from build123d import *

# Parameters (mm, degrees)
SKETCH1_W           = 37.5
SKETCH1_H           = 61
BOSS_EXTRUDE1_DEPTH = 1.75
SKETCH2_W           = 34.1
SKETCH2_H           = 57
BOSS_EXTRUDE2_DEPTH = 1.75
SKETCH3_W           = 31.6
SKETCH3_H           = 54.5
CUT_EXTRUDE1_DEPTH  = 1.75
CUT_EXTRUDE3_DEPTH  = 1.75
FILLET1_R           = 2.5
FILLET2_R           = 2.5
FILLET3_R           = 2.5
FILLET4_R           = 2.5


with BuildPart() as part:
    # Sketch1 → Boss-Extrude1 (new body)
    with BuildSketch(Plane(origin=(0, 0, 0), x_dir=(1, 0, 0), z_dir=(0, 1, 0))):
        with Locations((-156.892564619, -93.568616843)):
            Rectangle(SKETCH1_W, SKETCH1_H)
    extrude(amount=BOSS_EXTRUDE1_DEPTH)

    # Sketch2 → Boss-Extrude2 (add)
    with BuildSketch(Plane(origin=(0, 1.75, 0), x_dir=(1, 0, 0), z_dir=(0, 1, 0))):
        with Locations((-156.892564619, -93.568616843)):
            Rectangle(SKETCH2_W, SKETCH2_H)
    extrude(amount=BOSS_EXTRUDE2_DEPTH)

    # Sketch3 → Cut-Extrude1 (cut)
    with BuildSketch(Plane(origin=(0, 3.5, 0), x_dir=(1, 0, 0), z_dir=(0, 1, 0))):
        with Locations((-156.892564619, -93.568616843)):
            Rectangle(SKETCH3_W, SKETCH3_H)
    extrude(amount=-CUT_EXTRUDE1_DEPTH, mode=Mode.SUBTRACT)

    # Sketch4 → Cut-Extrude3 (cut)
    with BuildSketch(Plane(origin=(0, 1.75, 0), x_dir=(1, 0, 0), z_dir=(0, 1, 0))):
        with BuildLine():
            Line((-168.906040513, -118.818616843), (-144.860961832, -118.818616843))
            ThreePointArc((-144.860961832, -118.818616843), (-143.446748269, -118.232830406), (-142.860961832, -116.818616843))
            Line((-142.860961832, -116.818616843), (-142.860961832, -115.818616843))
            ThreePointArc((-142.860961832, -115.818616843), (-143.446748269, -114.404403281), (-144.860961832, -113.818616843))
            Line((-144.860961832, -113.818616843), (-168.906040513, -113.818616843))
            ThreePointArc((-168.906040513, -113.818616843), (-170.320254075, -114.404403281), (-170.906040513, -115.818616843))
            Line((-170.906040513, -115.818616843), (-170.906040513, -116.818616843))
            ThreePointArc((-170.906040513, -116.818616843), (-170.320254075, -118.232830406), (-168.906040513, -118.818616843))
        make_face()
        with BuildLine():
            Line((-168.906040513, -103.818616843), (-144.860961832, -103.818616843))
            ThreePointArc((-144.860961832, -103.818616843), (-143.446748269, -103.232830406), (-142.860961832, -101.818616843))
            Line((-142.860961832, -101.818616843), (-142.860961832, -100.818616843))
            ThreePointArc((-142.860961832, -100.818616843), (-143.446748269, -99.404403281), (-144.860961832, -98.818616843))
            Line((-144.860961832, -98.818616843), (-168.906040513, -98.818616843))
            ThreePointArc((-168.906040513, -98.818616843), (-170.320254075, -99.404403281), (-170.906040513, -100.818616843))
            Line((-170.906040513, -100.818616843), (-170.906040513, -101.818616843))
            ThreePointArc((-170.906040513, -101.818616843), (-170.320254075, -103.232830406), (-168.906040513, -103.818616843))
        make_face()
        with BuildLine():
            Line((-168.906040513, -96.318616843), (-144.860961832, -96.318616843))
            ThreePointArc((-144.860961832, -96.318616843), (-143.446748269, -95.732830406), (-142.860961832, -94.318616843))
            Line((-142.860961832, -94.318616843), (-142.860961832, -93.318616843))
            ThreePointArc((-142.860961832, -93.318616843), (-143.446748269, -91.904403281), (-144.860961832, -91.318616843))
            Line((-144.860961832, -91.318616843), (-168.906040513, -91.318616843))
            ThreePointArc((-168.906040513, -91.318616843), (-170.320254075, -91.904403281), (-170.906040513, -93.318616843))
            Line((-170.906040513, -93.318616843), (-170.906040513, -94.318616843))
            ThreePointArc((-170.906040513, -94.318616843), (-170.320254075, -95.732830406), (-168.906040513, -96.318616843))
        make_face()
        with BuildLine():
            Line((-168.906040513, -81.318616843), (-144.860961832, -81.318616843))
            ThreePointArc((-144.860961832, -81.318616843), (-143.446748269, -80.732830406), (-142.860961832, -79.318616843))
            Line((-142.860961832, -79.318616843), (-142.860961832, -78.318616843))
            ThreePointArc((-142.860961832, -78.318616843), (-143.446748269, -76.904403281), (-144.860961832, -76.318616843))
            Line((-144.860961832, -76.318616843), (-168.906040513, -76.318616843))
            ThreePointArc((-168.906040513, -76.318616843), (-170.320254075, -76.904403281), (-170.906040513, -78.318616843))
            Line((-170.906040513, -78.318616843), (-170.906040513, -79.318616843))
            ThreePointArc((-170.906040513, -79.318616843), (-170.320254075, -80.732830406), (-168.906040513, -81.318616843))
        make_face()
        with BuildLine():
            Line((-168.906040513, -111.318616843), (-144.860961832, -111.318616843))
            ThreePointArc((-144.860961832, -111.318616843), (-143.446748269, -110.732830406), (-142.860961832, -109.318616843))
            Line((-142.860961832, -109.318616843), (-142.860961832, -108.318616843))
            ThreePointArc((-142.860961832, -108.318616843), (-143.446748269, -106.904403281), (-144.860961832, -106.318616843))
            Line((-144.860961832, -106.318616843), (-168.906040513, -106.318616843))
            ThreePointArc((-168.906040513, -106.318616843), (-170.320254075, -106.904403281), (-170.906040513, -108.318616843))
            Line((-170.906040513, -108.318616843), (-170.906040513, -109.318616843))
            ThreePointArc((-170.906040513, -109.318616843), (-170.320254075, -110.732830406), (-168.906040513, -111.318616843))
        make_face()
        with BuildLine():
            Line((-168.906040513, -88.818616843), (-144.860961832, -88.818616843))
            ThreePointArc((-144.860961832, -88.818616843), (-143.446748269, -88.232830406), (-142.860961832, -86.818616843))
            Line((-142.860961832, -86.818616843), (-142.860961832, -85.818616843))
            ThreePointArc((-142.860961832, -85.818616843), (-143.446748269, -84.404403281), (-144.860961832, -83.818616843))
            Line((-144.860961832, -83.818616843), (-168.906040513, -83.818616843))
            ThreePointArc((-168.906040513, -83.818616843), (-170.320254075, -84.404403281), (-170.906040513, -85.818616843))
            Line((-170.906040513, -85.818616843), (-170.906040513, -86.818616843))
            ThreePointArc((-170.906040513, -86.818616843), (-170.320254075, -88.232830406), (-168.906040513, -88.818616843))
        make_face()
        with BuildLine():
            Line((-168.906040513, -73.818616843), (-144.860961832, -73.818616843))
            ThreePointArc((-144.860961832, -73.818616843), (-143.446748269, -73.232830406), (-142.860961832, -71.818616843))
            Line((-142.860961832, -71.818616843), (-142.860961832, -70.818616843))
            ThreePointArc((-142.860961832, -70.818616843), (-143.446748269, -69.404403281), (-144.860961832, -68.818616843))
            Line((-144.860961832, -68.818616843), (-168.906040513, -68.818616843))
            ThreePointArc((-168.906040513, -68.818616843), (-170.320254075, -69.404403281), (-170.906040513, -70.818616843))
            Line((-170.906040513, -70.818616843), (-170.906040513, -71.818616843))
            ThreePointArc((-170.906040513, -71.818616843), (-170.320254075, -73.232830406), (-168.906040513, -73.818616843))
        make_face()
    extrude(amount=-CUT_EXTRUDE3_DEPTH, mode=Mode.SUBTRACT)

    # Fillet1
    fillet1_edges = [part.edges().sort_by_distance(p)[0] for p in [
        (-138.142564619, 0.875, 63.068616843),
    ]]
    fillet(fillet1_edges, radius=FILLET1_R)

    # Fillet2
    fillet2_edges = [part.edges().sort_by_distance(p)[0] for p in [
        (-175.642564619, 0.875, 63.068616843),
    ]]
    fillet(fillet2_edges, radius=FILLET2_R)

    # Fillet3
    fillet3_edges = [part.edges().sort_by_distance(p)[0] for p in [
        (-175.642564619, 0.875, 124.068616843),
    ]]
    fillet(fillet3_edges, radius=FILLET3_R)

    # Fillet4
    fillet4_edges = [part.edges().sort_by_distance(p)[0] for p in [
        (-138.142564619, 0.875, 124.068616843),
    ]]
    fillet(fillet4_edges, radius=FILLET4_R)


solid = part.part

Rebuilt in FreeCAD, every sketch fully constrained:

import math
import FreeCAD as App
import Part
import Sketcher
Q = App.Units.Quantity


def edges_at(feature, points):
    """Names of the edges that pass closest to the given points."""
    edges = feature.Shape.Edges
    near = lambda p: min(range(len(edges)), key=lambda i: edges[i].distToShape(Part.Vertex(*p))[0])
    return sorted({f"Edge{near(p) + 1}" for p in points})

doc = App.newDocument("Part")
params = doc.addObject("Spreadsheet::Sheet", "Params")
for row, (alias, value) in enumerate([
    ("sketch1_height", "61 mm"),
    ("sketch1_width", "37.5 mm"),
    ("pad1_length", "1.75 mm"),
    ("sketch2_height", "57 mm"),
    ("sketch2_width", "34.1 mm"),
    ("pad2_length", "1.75 mm"),
    ("sketch3_width", "31.6 mm"),
    ("sketch3_height", "54.5 mm"),
    ("pocket1_length", "1.75 mm"),
    ("sketch4_radius", "2 mm"),
    ("sketch4_height", "1 mm"),
    ("pocket2_length", "1.75 mm"),
    ("fillet_radius", "2.5 mm"),
    ("fillet2_radius", "2.5 mm"),
    ("fillet3_radius", "2.5 mm"),
    ("fillet4_radius", "2.5 mm"),
], start=1):
    params.set(f"A{row}", alias)
    params.set(f"B{row}", "=" + value)
    params.setAlias(f"B{row}", alias)

body = doc.addObject("PartDesign::Body", "Body")

# Sketch on XZ plane
sketch1 = body.newObject("Sketcher::SketchObject", "Sketch")
sketch1.AttachmentSupport = (doc.getObject("XZ_Plane"), [""])
sketch1.MapMode = "FlatFace"
sketch1.addGeometry(Part.LineSegment(App.Vector(-175.642565, 63.068617, 0), App.Vector(-175.642565, 124.068617, 0)), False)
sketch1.addGeometry(Part.LineSegment(App.Vector(-175.642565, 124.068617, 0), App.Vector(-138.142565, 124.068617, 0)), False)
sketch1.addGeometry(Part.LineSegment(App.Vector(-138.142565, 124.068617, 0), App.Vector(-138.142565, 63.068617, 0)), False)
sketch1.addGeometry(Part.LineSegment(App.Vector(-138.142565, 63.068617, 0), App.Vector(-175.642565, 63.068617, 0)), False)
sketch1.addConstraint(Sketcher.Constraint("Coincident", 0, 2, 1, 1))
sketch1.addConstraint(Sketcher.Constraint("Coincident", 1, 2, 2, 1))
sketch1.addConstraint(Sketcher.Constraint("Coincident", 2, 2, 3, 1))
sketch1.addConstraint(Sketcher.Constraint("Coincident", 3, 2, 0, 1))
sketch1.addConstraint(Sketcher.Constraint("Vertical", 0))
sketch1.addConstraint(Sketcher.Constraint("Horizontal", 1))
sketch1.addConstraint(Sketcher.Constraint("Vertical", 2))
sketch1.addConstraint(Sketcher.Constraint("Horizontal", 3))
sketch1.addConstraint(Sketcher.Constraint("DistanceY", 0, 1, 0, 2, Q("61 mm")))
sketch1.addConstraint(Sketcher.Constraint("DistanceX", 1, 1, 1, 2, Q("37.5 mm")))
sketch1.addConstraint(Sketcher.Constraint("DistanceX", 0, 2, -1, 1, Q("175.642565 mm")))
sketch1.addConstraint(Sketcher.Constraint("DistanceY", -1, 1, 0, 2, Q("124.068617 mm")))
sketch1.setExpression("Constraints[8]", "Params.sketch1_height")
sketch1.setExpression("Constraints[9]", "Params.sketch1_width")
pad1 = body.newObject("PartDesign::Pad", "Pad")
pad1.Profile = sketch1
pad1.setExpression("Length", "Params.pad1_length")
pad1.Reversed = True

# Sketch on XZ plane
sketch2 = body.newObject("Sketcher::SketchObject", "Sketch001")
sketch2.AttachmentSupport = (doc.getObject("XZ_Plane"), [""])
sketch2.MapMode = "FlatFace"
sketch2.AttachmentOffset = App.Placement(App.Vector(0, 0, -1.75), App.Rotation())
sketch2.addGeometry(Part.LineSegment(App.Vector(-173.942565, 65.068617, 0), App.Vector(-173.942565, 122.068617, 0)), False)
sketch2.addGeometry(Part.LineSegment(App.Vector(-173.942565, 122.068617, 0), App.Vector(-139.842565, 122.068617, 0)), False)
sketch2.addGeometry(Part.LineSegment(App.Vector(-139.842565, 122.068617, 0), App.Vector(-139.842565, 65.068617, 0)), False)
sketch2.addGeometry(Part.LineSegment(App.Vector(-139.842565, 65.068617, 0), App.Vector(-173.942565, 65.068617, 0)), False)
sketch2.addConstraint(Sketcher.Constraint("Coincident", 0, 2, 1, 1))
sketch2.addConstraint(Sketcher.Constraint("Coincident", 1, 2, 2, 1))
sketch2.addConstraint(Sketcher.Constraint("Coincident", 2, 2, 3, 1))
sketch2.addConstraint(Sketcher.Constraint("Coincident", 3, 2, 0, 1))
sketch2.addConstraint(Sketcher.Constraint("Vertical", 0))
sketch2.addConstraint(Sketcher.Constraint("Horizontal", 1))
sketch2.addConstraint(Sketcher.Constraint("Vertical", 2))
sketch2.addConstraint(Sketcher.Constraint("Horizontal", 3))
sketch2.addConstraint(Sketcher.Constraint("DistanceY", 0, 1, 0, 2, Q("57 mm")))
sketch2.addConstraint(Sketcher.Constraint("DistanceX", 1, 1, 1, 2, Q("34.1 mm")))
sketch2.addConstraint(Sketcher.Constraint("DistanceX", 0, 2, -1, 1, Q("173.942565 mm")))
sketch2.addConstraint(Sketcher.Constraint("DistanceY", -1, 1, 0, 2, Q("122.068617 mm")))
sketch2.setExpression("Constraints[8]", "Params.sketch2_height")
sketch2.setExpression("Constraints[9]", "Params.sketch2_width")
pad2 = body.newObject("PartDesign::Pad", "Pad001")
pad2.Profile = sketch2
pad2.setExpression("Length", "Params.pad2_length")
pad2.Reversed = True

# Sketch on XZ plane
sketch3 = body.newObject("Sketcher::SketchObject", "Sketch002")
sketch3.AttachmentSupport = (doc.getObject("XZ_Plane"), [""])
sketch3.MapMode = "FlatFace"
sketch3.AttachmentOffset = App.Placement(App.Vector(0, 0, -3.5), App.Rotation())
sketch3.addGeometry(Part.LineSegment(App.Vector(-172.692565, 66.318617, 0), App.Vector(-172.692565, 120.818617, 0)), False)
sketch3.addGeometry(Part.LineSegment(App.Vector(-172.692565, 120.818617, 0), App.Vector(-141.092565, 120.818617, 0)), False)
sketch3.addGeometry(Part.LineSegment(App.Vector(-141.092565, 120.818617, 0), App.Vector(-141.092565, 66.318617, 0)), False)
sketch3.addGeometry(Part.LineSegment(App.Vector(-141.092565, 66.318617, 0), App.Vector(-172.692565, 66.318617, 0)), False)
sketch3.addConstraint(Sketcher.Constraint("Coincident", 0, 2, 1, 1))
sketch3.addConstraint(Sketcher.Constraint("Coincident", 1, 2, 2, 1))
sketch3.addConstraint(Sketcher.Constraint("Coincident", 2, 2, 3, 1))
sketch3.addConstraint(Sketcher.Constraint("Coincident", 3, 2, 0, 1))
sketch3.addConstraint(Sketcher.Constraint("Vertical", 0))
sketch3.addConstraint(Sketcher.Constraint("Horizontal", 1))
sketch3.addConstraint(Sketcher.Constraint("Vertical", 2))
sketch3.addConstraint(Sketcher.Constraint("Horizontal", 3))
sketch3.addConstraint(Sketcher.Constraint("DistanceX", 1, 1, 1, 2, Q("31.6 mm")))
sketch3.addConstraint(Sketcher.Constraint("DistanceY", 0, 1, 0, 2, Q("54.5 mm")))
sketch3.addConstraint(Sketcher.Constraint("DistanceX", 0, 2, -1, 1, Q("172.692565 mm")))
sketch3.addConstraint(Sketcher.Constraint("DistanceY", -1, 1, 0, 2, Q("120.818617 mm")))
sketch3.setExpression("Constraints[8]", "Params.sketch3_width")
sketch3.setExpression("Constraints[9]", "Params.sketch3_height")
pocket1 = body.newObject("PartDesign::Pocket", "Pocket")
pocket1.Profile = sketch3
pocket1.setExpression("Length", "Params.pocket1_length")
pocket1.Reversed = True

# Sketch on XZ plane
sketch4 = body.newObject("Sketcher::SketchObject", "Sketch003")
sketch4.AttachmentSupport = (doc.getObject("XZ_Plane"), [""])
sketch4.MapMode = "FlatFace"
sketch4.AttachmentOffset = App.Placement(App.Vector(0, 0, -1.75), App.Rotation())
sketch4.addGeometry(Part.LineSegment(App.Vector(-168.906041, 118.818617, 0), App.Vector(-144.860962, 118.818617, 0)), False)
sketch4.addGeometry(Part.ArcOfCircle(Part.Circle(App.Vector(-144.860962, 116.818617, 0), App.Vector(0, 0, 1), 2), math.radians(0), math.radians(90)), False)
sketch4.addGeometry(Part.LineSegment(App.Vector(-142.860962, 116.818617, 0), App.Vector(-142.860962, 115.818617, 0)), False)
sketch4.addGeometry(Part.ArcOfCircle(Part.Circle(App.Vector(-144.860962, 115.818617, 0), App.Vector(0, 0, 1), 2), math.radians(-90), math.radians(0)), False)
sketch4.addGeometry(Part.LineSegment(App.Vector(-144.860962, 113.818617, 0), App.Vector(-168.906041, 113.818617, 0)), False)
sketch4.addGeometry(Part.ArcOfCircle(Part.Circle(App.Vector(-168.906041, 115.818617, 0), App.Vector(0, 0, 1), 2), math.radians(-180), math.radians(-90)), False)
sketch4.addGeometry(Part.LineSegment(App.Vector(-170.906041, 115.818617, 0), App.Vector(-170.906041, 116.818617, 0)), False)
sketch4.addGeometry(Part.ArcOfCircle(Part.Circle(App.Vector(-168.906041, 116.818617, 0), App.Vector(0, 0, 1), 2), math.radians(90), math.radians(180)), False)
sketch4.addGeometry(Part.LineSegment(App.Vector(-168.906041, 103.818617, 0), App.Vector(-144.860962, 103.818617, 0)), False)
sketch4.addGeometry(Part.ArcOfCircle(Part.Circle(App.Vector(-144.860962, 101.818617, 0), App.Vector(0, 0, 1), 2), math.radians(0), math.radians(90)), False)
sketch4.addGeometry(Part.LineSegment(App.Vector(-142.860962, 101.818617, 0), App.Vector(-142.860962, 100.818617, 0)), False)
sketch4.addGeometry(Part.ArcOfCircle(Part.Circle(App.Vector(-144.860962, 100.818617, 0), App.Vector(0, 0, 1), 2), math.radians(-90), math.radians(0)), False)
sketch4.addGeometry(Part.LineSegment(App.Vector(-144.860962, 98.818617, 0), App.Vector(-168.906041, 98.818617, 0)), False)
sketch4.addGeometry(Part.ArcOfCircle(Part.Circle(App.Vector(-168.906041, 100.818617, 0), App.Vector(0, 0, 1), 2), math.radians(-180), math.radians(-90)), False)
sketch4.addGeometry(Part.LineSegment(App.Vector(-170.906041, 100.818617, 0), App.Vector(-170.906041, 101.818617, 0)), False)
sketch4.addGeometry(Part.ArcOfCircle(Part.Circle(App.Vector(-168.906041, 101.818617, 0), App.Vector(0, 0, 1), 2), math.radians(90), math.radians(180)), False)
sketch4.addGeometry(Part.LineSegment(App.Vector(-168.906041, 96.318617, 0), App.Vector(-144.860962, 96.318617, 0)), False)
sketch4.addGeometry(Part.ArcOfCircle(Part.Circle(App.Vector(-144.860962, 94.318617, 0), App.Vector(0, 0, 1), 2), math.radians(0), math.radians(90)), False)
sketch4.addGeometry(Part.LineSegment(App.Vector(-142.860962, 94.318617, 0), App.Vector(-142.860962, 93.318617, 0)), False)
sketch4.addGeometry(Part.ArcOfCircle(Part.Circle(App.Vector(-144.860962, 93.318617, 0), App.Vector(0, 0, 1), 2), math.radians(-90), math.radians(0)), False)
sketch4.addGeometry(Part.LineSegment(App.Vector(-144.860962, 91.318617, 0), App.Vector(-168.906041, 91.318617, 0)), False)
sketch4.addGeometry(Part.ArcOfCircle(Part.Circle(App.Vector(-168.906041, 93.318617, 0), App.Vector(0, 0, 1), 2), math.radians(-180), math.radians(-90)), False)
sketch4.addGeometry(Part.LineSegment(App.Vector(-170.906041, 93.318617, 0), App.Vector(-170.906041, 94.318617, 0)), False)
sketch4.addGeometry(Part.ArcOfCircle(Part.Circle(App.Vector(-168.906041, 94.318617, 0), App.Vector(0, 0, 1), 2), math.radians(90), math.radians(180)), False)
sketch4.addGeometry(Part.LineSegment(App.Vector(-168.906041, 81.318617, 0), App.Vector(-144.860962, 81.318617, 0)), False)
sketch4.addGeometry(Part.ArcOfCircle(Part.Circle(App.Vector(-144.860962, 79.318617, 0), App.Vector(0, 0, 1), 2), math.radians(0), math.radians(90)), False)
sketch4.addGeometry(Part.LineSegment(App.Vector(-142.860962, 79.318617, 0), App.Vector(-142.860962, 78.318617, 0)), False)
sketch4.addGeometry(Part.ArcOfCircle(Part.Circle(App.Vector(-144.860962, 78.318617, 0), App.Vector(0, 0, 1), 2), math.radians(-90), math.radians(0)), False)
sketch4.addGeometry(Part.LineSegment(App.Vector(-144.860962, 76.318617, 0), App.Vector(-168.906041, 76.318617, 0)), False)
sketch4.addGeometry(Part.ArcOfCircle(Part.Circle(App.Vector(-168.906041, 78.318617, 0), App.Vector(0, 0, 1), 2), math.radians(-180), math.radians(-90)), False)
sketch4.addGeometry(Part.LineSegment(App.Vector(-170.906041, 78.318617, 0), App.Vector(-170.906041, 79.318617, 0)), False)
sketch4.addGeometry(Part.ArcOfCircle(Part.Circle(App.Vector(-168.906041, 79.318617, 0), App.Vector(0, 0, 1), 2), math.radians(90), math.radians(180)), False)
sketch4.addGeometry(Part.LineSegment(App.Vector(-168.906041, 111.318617, 0), App.Vector(-144.860962, 111.318617, 0)), False)
sketch4.addGeometry(Part.ArcOfCircle(Part.Circle(App.Vector(-144.860962, 109.318617, 0), App.Vector(0, 0, 1), 2), math.radians(0), math.radians(90)), False)
sketch4.addGeometry(Part.LineSegment(App.Vector(-142.860962, 109.318617, 0), App.Vector(-142.860962, 108.318617, 0)), False)
sketch4.addGeometry(Part.ArcOfCircle(Part.Circle(App.Vector(-144.860962, 108.318617, 0), App.Vector(0, 0, 1), 2), math.radians(-90), math.radians(0)), False)
sketch4.addGeometry(Part.LineSegment(App.Vector(-144.860962, 106.318617, 0), App.Vector(-168.906041, 106.318617, 0)), False)
sketch4.addGeometry(Part.ArcOfCircle(Part.Circle(App.Vector(-168.906041, 108.318617, 0), App.Vector(0, 0, 1), 2), math.radians(-180), math.radians(-90)), False)
sketch4.addGeometry(Part.LineSegment(App.Vector(-170.906041, 108.318617, 0), App.Vector(-170.906041, 109.318617, 0)), False)
sketch4.addGeometry(Part.ArcOfCircle(Part.Circle(App.Vector(-168.906041, 109.318617, 0), App.Vector(0, 0, 1), 2), math.radians(90), math.radians(180)), False)
sketch4.addGeometry(Part.LineSegment(App.Vector(-168.906041, 88.818617, 0), App.Vector(-144.860962, 88.818617, 0)), False)
sketch4.addGeometry(Part.ArcOfCircle(Part.Circle(App.Vector(-144.860962, 86.818617, 0), App.Vector(0, 0, 1), 2), math.radians(0), math.radians(90)), False)
sketch4.addGeometry(Part.LineSegment(App.Vector(-142.860962, 86.818617, 0), App.Vector(-142.860962, 85.818617, 0)), False)
sketch4.addGeometry(Part.ArcOfCircle(Part.Circle(App.Vector(-144.860962, 85.818617, 0), App.Vector(0, 0, 1), 2), math.radians(-90), math.radians(0)), False)
sketch4.addGeometry(Part.LineSegment(App.Vector(-144.860962, 83.818617, 0), App.Vector(-168.906041, 83.818617, 0)), False)
sketch4.addGeometry(Part.ArcOfCircle(Part.Circle(App.Vector(-168.906041, 85.818617, 0), App.Vector(0, 0, 1), 2), math.radians(-180), math.radians(-90)), False)
sketch4.addGeometry(Part.LineSegment(App.Vector(-170.906041, 85.818617, 0), App.Vector(-170.906041, 86.818617, 0)), False)
sketch4.addGeometry(Part.ArcOfCircle(Part.Circle(App.Vector(-168.906041, 86.818617, 0), App.Vector(0, 0, 1), 2), math.radians(90), math.radians(180)), False)
sketch4.addGeometry(Part.LineSegment(App.Vector(-168.906041, 73.818617, 0), App.Vector(-144.860962, 73.818617, 0)), False)
sketch4.addGeometry(Part.ArcOfCircle(Part.Circle(App.Vector(-144.860962, 71.818617, 0), App.Vector(0, 0, 1), 2), math.radians(0), math.radians(90)), False)
sketch4.addGeometry(Part.LineSegment(App.Vector(-142.860962, 71.818617, 0), App.Vector(-142.860962, 70.818617, 0)), False)
sketch4.addGeometry(Part.ArcOfCircle(Part.Circle(App.Vector(-144.860962, 70.818617, 0), App.Vector(0, 0, 1), 2), math.radians(-90), math.radians(0)), False)
sketch4.addGeometry(Part.LineSegment(App.Vector(-144.860962, 68.818617, 0), App.Vector(-168.906041, 68.818617, 0)), False)
sketch4.addGeometry(Part.ArcOfCircle(Part.Circle(App.Vector(-168.906041, 70.818617, 0), App.Vector(0, 0, 1), 2), math.radians(-180), math.radians(-90)), False)
sketch4.addGeometry(Part.LineSegment(App.Vector(-170.906041, 70.818617, 0), App.Vector(-170.906041, 71.818617, 0)), False)
sketch4.addGeometry(Part.ArcOfCircle(Part.Circle(App.Vector(-168.906041, 71.818617, 0), App.Vector(0, 0, 1), 2), math.radians(90), math.radians(180)), False)
sketch4.addConstraint(Sketcher.Constraint("Tangent", 0, 2, 1, 2))
sketch4.addConstraint(Sketcher.Constraint("Tangent", 1, 1, 2, 1))
sketch4.addConstraint(Sketcher.Constraint("Tangent", 2, 2, 3, 2))
sketch4.addConstraint(Sketcher.Constraint("Tangent", 3, 1, 4, 1))
sketch4.addConstraint(Sketcher.Constraint("Tangent", 4, 2, 5, 2))
sketch4.addConstraint(Sketcher.Constraint("Tangent", 5, 1, 6, 1))
sketch4.addConstraint(Sketcher.Constraint("Tangent", 6, 2, 7, 2))
sketch4.addConstraint(Sketcher.Constraint("Tangent", 7, 1, 0, 1))
sketch4.addConstraint(Sketcher.Constraint("Tangent", 8, 2, 9, 2))
sketch4.addConstraint(Sketcher.Constraint("Tangent", 9, 1, 10, 1))
sketch4.addConstraint(Sketcher.Constraint("Tangent", 10, 2, 11, 2))
sketch4.addConstraint(Sketcher.Constraint("Tangent", 11, 1, 12, 1))
sketch4.addConstraint(Sketcher.Constraint("Tangent", 12, 2, 13, 2))
sketch4.addConstraint(Sketcher.Constraint("Tangent", 13, 1, 14, 1))
sketch4.addConstraint(Sketcher.Constraint("Tangent", 14, 2, 15, 2))
sketch4.addConstraint(Sketcher.Constraint("Tangent", 15, 1, 8, 1))
sketch4.addConstraint(Sketcher.Constraint("Tangent", 16, 2, 17, 2))
sketch4.addConstraint(Sketcher.Constraint("Tangent", 17, 1, 18, 1))
sketch4.addConstraint(Sketcher.Constraint("Tangent", 18, 2, 19, 2))
sketch4.addConstraint(Sketcher.Constraint("Tangent", 19, 1, 20, 1))
sketch4.addConstraint(Sketcher.Constraint("Tangent", 20, 2, 21, 2))
sketch4.addConstraint(Sketcher.Constraint("Tangent", 21, 1, 22, 1))
sketch4.addConstraint(Sketcher.Constraint("Tangent", 22, 2, 23, 2))
sketch4.addConstraint(Sketcher.Constraint("Tangent", 23, 1, 16, 1))
sketch4.addConstraint(Sketcher.Constraint("Tangent", 24, 2, 25, 2))
sketch4.addConstraint(Sketcher.Constraint("Tangent", 25, 1, 26, 1))
sketch4.addConstraint(Sketcher.Constraint("Tangent", 26, 2, 27, 2))
sketch4.addConstraint(Sketcher.Constraint("Tangent", 27, 1, 28, 1))
sketch4.addConstraint(Sketcher.Constraint("Tangent", 28, 2, 29, 2))
sketch4.addConstraint(Sketcher.Constraint("Tangent", 29, 1, 30, 1))
sketch4.addConstraint(Sketcher.Constraint("Tangent", 30, 2, 31, 2))
sketch4.addConstraint(Sketcher.Constraint("Tangent", 31, 1, 24, 1))
sketch4.addConstraint(Sketcher.Constraint("Tangent", 32, 2, 33, 2))
sketch4.addConstraint(Sketcher.Constraint("Tangent", 33, 1, 34, 1))
sketch4.addConstraint(Sketcher.Constraint("Tangent", 34, 2, 35, 2))
sketch4.addConstraint(Sketcher.Constraint("Tangent", 35, 1, 36, 1))
sketch4.addConstraint(Sketcher.Constraint("Tangent", 36, 2, 37, 2))
sketch4.addConstraint(Sketcher.Constraint("Tangent", 37, 1, 38, 1))
sketch4.addConstraint(Sketcher.Constraint("Tangent", 38, 2, 39, 2))
sketch4.addConstraint(Sketcher.Constraint("Tangent", 39, 1, 32, 1))
sketch4.addConstraint(Sketcher.Constraint("Tangent", 40, 2, 41, 2))
sketch4.addConstraint(Sketcher.Constraint("Tangent", 41, 1, 42, 1))
sketch4.addConstraint(Sketcher.Constraint("Tangent", 42, 2, 43, 2))
sketch4.addConstraint(Sketcher.Constraint("Tangent", 43, 1, 44, 1))
sketch4.addConstraint(Sketcher.Constraint("Tangent", 44, 2, 45, 2))
sketch4.addConstraint(Sketcher.Constraint("Tangent", 45, 1, 46, 1))
sketch4.addConstraint(Sketcher.Constraint("Tangent", 46, 2, 47, 2))
sketch4.addConstraint(Sketcher.Constraint("Tangent", 47, 1, 40, 1))
sketch4.addConstraint(Sketcher.Constraint("Tangent", 48, 2, 49, 2))
sketch4.addConstraint(Sketcher.Constraint("Tangent", 49, 1, 50, 1))
sketch4.addConstraint(Sketcher.Constraint("Tangent", 50, 2, 51, 2))
sketch4.addConstraint(Sketcher.Constraint("Tangent", 51, 1, 52, 1))
sketch4.addConstraint(Sketcher.Constraint("Tangent", 52, 2, 53, 2))
sketch4.addConstraint(Sketcher.Constraint("Tangent", 53, 1, 54, 1))
sketch4.addConstraint(Sketcher.Constraint("Tangent", 54, 2, 55, 2))
sketch4.addConstraint(Sketcher.Constraint("Tangent", 55, 1, 48, 1))
sketch4.addConstraint(Sketcher.Constraint("Horizontal", 0))
sketch4.addConstraint(Sketcher.Constraint("Vertical", 2))
sketch4.addConstraint(Sketcher.Constraint("Horizontal", 4))
sketch4.addConstraint(Sketcher.Constraint("Vertical", 6))
sketch4.addConstraint(Sketcher.Constraint("Horizontal", 8))
sketch4.addConstraint(Sketcher.Constraint("Vertical", 10))
sketch4.addConstraint(Sketcher.Constraint("Horizontal", 12))
sketch4.addConstraint(Sketcher.Constraint("Vertical", 14))
sketch4.addConstraint(Sketcher.Constraint("Horizontal", 16))
sketch4.addConstraint(Sketcher.Constraint("Vertical", 18))
sketch4.addConstraint(Sketcher.Constraint("Horizontal", 20))
sketch4.addConstraint(Sketcher.Constraint("Vertical", 22))
sketch4.addConstraint(Sketcher.Constraint("Horizontal", 24))
sketch4.addConstraint(Sketcher.Constraint("Vertical", 26))
sketch4.addConstraint(Sketcher.Constraint("Horizontal", 28))
sketch4.addConstraint(Sketcher.Constraint("Vertical", 30))
sketch4.addConstraint(Sketcher.Constraint("Horizontal", 32))
sketch4.addConstraint(Sketcher.Constraint("Vertical", 34))
sketch4.addConstraint(Sketcher.Constraint("Horizontal", 36))
sketch4.addConstraint(Sketcher.Constraint("Vertical", 38))
sketch4.addConstraint(Sketcher.Constraint("Horizontal", 40))
sketch4.addConstraint(Sketcher.Constraint("Vertical", 42))
sketch4.addConstraint(Sketcher.Constraint("Horizontal", 44))
sketch4.addConstraint(Sketcher.Constraint("Vertical", 46))
sketch4.addConstraint(Sketcher.Constraint("Horizontal", 48))
sketch4.addConstraint(Sketcher.Constraint("Vertical", 50))
sketch4.addConstraint(Sketcher.Constraint("Horizontal", 52))
sketch4.addConstraint(Sketcher.Constraint("Vertical", 54))
sketch4.addConstraint(Sketcher.Constraint("Equal", 1, 3))
sketch4.addConstraint(Sketcher.Constraint("Equal", 3, 5))
sketch4.addConstraint(Sketcher.Constraint("Equal", 5, 7))
sketch4.addConstraint(Sketcher.Constraint("Equal", 7, 9))
sketch4.addConstraint(Sketcher.Constraint("Equal", 9, 11))
sketch4.addConstraint(Sketcher.Constraint("Equal", 11, 13))
sketch4.addConstraint(Sketcher.Constraint("Equal", 13, 15))
sketch4.addConstraint(Sketcher.Constraint("Equal", 15, 17))
sketch4.addConstraint(Sketcher.Constraint("Equal", 17, 19))
sketch4.addConstraint(Sketcher.Constraint("Equal", 19, 21))
sketch4.addConstraint(Sketcher.Constraint("Equal", 21, 23))
sketch4.addConstraint(Sketcher.Constraint("Equal", 23, 25))
sketch4.addConstraint(Sketcher.Constraint("Equal", 25, 27))
sketch4.addConstraint(Sketcher.Constraint("Equal", 27, 29))
sketch4.addConstraint(Sketcher.Constraint("Equal", 29, 31))
sketch4.addConstraint(Sketcher.Constraint("Equal", 31, 33))
sketch4.addConstraint(Sketcher.Constraint("Equal", 33, 35))
sketch4.addConstraint(Sketcher.Constraint("Equal", 35, 37))
sketch4.addConstraint(Sketcher.Constraint("Equal", 37, 39))
sketch4.addConstraint(Sketcher.Constraint("Equal", 39, 41))
sketch4.addConstraint(Sketcher.Constraint("Equal", 41, 43))
sketch4.addConstraint(Sketcher.Constraint("Equal", 43, 45))
sketch4.addConstraint(Sketcher.Constraint("Equal", 45, 47))
sketch4.addConstraint(Sketcher.Constraint("Equal", 47, 49))
sketch4.addConstraint(Sketcher.Constraint("Equal", 49, 51))
sketch4.addConstraint(Sketcher.Constraint("Equal", 51, 53))
sketch4.addConstraint(Sketcher.Constraint("Equal", 53, 55))
sketch4.addConstraint(Sketcher.Constraint("Vertical", 3, 3, 9, 3))
sketch4.addConstraint(Sketcher.Constraint("Vertical", 7, 3, 13, 3))
sketch4.addConstraint(Sketcher.Constraint("Vertical", 11, 3, 17, 3))
sketch4.addConstraint(Sketcher.Constraint("Vertical", 15, 3, 21, 3))
sketch4.addConstraint(Sketcher.Constraint("Vertical", 19, 3, 25, 3))
sketch4.addConstraint(Sketcher.Constraint("Vertical", 23, 3, 29, 3))
sketch4.addConstraint(Sketcher.Constraint("Vertical", 27, 3, 33, 3))
sketch4.addConstraint(Sketcher.Constraint("Vertical", 31, 3, 37, 3))
sketch4.addConstraint(Sketcher.Constraint("Vertical", 35, 3, 41, 3))
sketch4.addConstraint(Sketcher.Constraint("Vertical", 39, 3, 45, 3))
sketch4.addConstraint(Sketcher.Constraint("Vertical", 43, 3, 49, 3))
sketch4.addConstraint(Sketcher.Constraint("Vertical", 47, 3, 53, 3))
sketch4.addConstraint(Sketcher.Constraint("Equal", 6, 10))
sketch4.addConstraint(Sketcher.Constraint("Equal", 14, 18))
sketch4.addConstraint(Sketcher.Constraint("Equal", 22, 26))
sketch4.addConstraint(Sketcher.Constraint("Equal", 30, 34))
sketch4.addConstraint(Sketcher.Constraint("Equal", 38, 42))
sketch4.addConstraint(Sketcher.Constraint("Equal", 46, 50))
sketch4.addConstraint(Sketcher.Constraint("Radius", 1, Q("2 mm")))
sketch4.addConstraint(Sketcher.Constraint("DistanceY", 2, 2, 2, 1, Q("1 mm")))
sketch4.addConstraint(Sketcher.Constraint("DistanceX", 0, 1, 0, 2, Q("24.045079 mm")))
sketch4.addConstraint(Sketcher.Constraint("DistanceX", 1, 3, -1, 1, Q("144.860962 mm")))
sketch4.addConstraint(Sketcher.Constraint("DistanceY", -1, 1, 1, 3, Q("116.818617 mm")))
sketch4.addConstraint(Sketcher.Constraint("DistanceY", -1, 1, 9, 3, Q("101.818617 mm")))
sketch4.addConstraint(Sketcher.Constraint("DistanceY", -1, 1, 17, 3, Q("94.318617 mm")))
sketch4.addConstraint(Sketcher.Constraint("DistanceY", -1, 1, 25, 3, Q("79.318617 mm")))
sketch4.addConstraint(Sketcher.Constraint("DistanceY", -1, 1, 33, 3, Q("109.318617 mm")))
sketch4.addConstraint(Sketcher.Constraint("DistanceY", -1, 1, 41, 3, Q("86.818617 mm")))
sketch4.addConstraint(Sketcher.Constraint("DistanceY", -1, 1, 49, 3, Q("71.818617 mm")))
sketch4.setExpression("Constraints[129]", "Params.sketch4_radius")
sketch4.setExpression("Constraints[130]", "Params.sketch4_height")
pocket2 = body.newObject("PartDesign::Pocket", "Pocket001")
pocket2.Profile = sketch4
pocket2.setExpression("Length", "Params.pocket2_length")
pocket2.Reversed = True
doc.recompute()

fillet = body.newObject("PartDesign::Fillet", "Fillet")
fillet.Base = (pocket2, edges_at(pocket2, [(-138.143, 0.875, 63.069)]))
fillet.setExpression("Radius", "Params.fillet_radius")
doc.recompute()

fillet2 = body.newObject("PartDesign::Fillet", "Fillet001")
fillet2.Base = (fillet, edges_at(fillet, [(-175.643, 0.875, 63.069)]))
fillet2.setExpression("Radius", "Params.fillet2_radius")
doc.recompute()

fillet3 = body.newObject("PartDesign::Fillet", "Fillet002")
fillet3.Base = (fillet2, edges_at(fillet2, [(-175.643, 0.875, 124.069)]))
fillet3.setExpression("Radius", "Params.fillet3_radius")
doc.recompute()

fillet4 = body.newObject("PartDesign::Fillet", "Fillet003")
fillet4.Base = (fillet3, edges_at(fillet3, [(-138.143, 0.875, 124.069)]))
fillet4.setExpression("Radius", "Params.fillet4_radius")

doc.recompute()
